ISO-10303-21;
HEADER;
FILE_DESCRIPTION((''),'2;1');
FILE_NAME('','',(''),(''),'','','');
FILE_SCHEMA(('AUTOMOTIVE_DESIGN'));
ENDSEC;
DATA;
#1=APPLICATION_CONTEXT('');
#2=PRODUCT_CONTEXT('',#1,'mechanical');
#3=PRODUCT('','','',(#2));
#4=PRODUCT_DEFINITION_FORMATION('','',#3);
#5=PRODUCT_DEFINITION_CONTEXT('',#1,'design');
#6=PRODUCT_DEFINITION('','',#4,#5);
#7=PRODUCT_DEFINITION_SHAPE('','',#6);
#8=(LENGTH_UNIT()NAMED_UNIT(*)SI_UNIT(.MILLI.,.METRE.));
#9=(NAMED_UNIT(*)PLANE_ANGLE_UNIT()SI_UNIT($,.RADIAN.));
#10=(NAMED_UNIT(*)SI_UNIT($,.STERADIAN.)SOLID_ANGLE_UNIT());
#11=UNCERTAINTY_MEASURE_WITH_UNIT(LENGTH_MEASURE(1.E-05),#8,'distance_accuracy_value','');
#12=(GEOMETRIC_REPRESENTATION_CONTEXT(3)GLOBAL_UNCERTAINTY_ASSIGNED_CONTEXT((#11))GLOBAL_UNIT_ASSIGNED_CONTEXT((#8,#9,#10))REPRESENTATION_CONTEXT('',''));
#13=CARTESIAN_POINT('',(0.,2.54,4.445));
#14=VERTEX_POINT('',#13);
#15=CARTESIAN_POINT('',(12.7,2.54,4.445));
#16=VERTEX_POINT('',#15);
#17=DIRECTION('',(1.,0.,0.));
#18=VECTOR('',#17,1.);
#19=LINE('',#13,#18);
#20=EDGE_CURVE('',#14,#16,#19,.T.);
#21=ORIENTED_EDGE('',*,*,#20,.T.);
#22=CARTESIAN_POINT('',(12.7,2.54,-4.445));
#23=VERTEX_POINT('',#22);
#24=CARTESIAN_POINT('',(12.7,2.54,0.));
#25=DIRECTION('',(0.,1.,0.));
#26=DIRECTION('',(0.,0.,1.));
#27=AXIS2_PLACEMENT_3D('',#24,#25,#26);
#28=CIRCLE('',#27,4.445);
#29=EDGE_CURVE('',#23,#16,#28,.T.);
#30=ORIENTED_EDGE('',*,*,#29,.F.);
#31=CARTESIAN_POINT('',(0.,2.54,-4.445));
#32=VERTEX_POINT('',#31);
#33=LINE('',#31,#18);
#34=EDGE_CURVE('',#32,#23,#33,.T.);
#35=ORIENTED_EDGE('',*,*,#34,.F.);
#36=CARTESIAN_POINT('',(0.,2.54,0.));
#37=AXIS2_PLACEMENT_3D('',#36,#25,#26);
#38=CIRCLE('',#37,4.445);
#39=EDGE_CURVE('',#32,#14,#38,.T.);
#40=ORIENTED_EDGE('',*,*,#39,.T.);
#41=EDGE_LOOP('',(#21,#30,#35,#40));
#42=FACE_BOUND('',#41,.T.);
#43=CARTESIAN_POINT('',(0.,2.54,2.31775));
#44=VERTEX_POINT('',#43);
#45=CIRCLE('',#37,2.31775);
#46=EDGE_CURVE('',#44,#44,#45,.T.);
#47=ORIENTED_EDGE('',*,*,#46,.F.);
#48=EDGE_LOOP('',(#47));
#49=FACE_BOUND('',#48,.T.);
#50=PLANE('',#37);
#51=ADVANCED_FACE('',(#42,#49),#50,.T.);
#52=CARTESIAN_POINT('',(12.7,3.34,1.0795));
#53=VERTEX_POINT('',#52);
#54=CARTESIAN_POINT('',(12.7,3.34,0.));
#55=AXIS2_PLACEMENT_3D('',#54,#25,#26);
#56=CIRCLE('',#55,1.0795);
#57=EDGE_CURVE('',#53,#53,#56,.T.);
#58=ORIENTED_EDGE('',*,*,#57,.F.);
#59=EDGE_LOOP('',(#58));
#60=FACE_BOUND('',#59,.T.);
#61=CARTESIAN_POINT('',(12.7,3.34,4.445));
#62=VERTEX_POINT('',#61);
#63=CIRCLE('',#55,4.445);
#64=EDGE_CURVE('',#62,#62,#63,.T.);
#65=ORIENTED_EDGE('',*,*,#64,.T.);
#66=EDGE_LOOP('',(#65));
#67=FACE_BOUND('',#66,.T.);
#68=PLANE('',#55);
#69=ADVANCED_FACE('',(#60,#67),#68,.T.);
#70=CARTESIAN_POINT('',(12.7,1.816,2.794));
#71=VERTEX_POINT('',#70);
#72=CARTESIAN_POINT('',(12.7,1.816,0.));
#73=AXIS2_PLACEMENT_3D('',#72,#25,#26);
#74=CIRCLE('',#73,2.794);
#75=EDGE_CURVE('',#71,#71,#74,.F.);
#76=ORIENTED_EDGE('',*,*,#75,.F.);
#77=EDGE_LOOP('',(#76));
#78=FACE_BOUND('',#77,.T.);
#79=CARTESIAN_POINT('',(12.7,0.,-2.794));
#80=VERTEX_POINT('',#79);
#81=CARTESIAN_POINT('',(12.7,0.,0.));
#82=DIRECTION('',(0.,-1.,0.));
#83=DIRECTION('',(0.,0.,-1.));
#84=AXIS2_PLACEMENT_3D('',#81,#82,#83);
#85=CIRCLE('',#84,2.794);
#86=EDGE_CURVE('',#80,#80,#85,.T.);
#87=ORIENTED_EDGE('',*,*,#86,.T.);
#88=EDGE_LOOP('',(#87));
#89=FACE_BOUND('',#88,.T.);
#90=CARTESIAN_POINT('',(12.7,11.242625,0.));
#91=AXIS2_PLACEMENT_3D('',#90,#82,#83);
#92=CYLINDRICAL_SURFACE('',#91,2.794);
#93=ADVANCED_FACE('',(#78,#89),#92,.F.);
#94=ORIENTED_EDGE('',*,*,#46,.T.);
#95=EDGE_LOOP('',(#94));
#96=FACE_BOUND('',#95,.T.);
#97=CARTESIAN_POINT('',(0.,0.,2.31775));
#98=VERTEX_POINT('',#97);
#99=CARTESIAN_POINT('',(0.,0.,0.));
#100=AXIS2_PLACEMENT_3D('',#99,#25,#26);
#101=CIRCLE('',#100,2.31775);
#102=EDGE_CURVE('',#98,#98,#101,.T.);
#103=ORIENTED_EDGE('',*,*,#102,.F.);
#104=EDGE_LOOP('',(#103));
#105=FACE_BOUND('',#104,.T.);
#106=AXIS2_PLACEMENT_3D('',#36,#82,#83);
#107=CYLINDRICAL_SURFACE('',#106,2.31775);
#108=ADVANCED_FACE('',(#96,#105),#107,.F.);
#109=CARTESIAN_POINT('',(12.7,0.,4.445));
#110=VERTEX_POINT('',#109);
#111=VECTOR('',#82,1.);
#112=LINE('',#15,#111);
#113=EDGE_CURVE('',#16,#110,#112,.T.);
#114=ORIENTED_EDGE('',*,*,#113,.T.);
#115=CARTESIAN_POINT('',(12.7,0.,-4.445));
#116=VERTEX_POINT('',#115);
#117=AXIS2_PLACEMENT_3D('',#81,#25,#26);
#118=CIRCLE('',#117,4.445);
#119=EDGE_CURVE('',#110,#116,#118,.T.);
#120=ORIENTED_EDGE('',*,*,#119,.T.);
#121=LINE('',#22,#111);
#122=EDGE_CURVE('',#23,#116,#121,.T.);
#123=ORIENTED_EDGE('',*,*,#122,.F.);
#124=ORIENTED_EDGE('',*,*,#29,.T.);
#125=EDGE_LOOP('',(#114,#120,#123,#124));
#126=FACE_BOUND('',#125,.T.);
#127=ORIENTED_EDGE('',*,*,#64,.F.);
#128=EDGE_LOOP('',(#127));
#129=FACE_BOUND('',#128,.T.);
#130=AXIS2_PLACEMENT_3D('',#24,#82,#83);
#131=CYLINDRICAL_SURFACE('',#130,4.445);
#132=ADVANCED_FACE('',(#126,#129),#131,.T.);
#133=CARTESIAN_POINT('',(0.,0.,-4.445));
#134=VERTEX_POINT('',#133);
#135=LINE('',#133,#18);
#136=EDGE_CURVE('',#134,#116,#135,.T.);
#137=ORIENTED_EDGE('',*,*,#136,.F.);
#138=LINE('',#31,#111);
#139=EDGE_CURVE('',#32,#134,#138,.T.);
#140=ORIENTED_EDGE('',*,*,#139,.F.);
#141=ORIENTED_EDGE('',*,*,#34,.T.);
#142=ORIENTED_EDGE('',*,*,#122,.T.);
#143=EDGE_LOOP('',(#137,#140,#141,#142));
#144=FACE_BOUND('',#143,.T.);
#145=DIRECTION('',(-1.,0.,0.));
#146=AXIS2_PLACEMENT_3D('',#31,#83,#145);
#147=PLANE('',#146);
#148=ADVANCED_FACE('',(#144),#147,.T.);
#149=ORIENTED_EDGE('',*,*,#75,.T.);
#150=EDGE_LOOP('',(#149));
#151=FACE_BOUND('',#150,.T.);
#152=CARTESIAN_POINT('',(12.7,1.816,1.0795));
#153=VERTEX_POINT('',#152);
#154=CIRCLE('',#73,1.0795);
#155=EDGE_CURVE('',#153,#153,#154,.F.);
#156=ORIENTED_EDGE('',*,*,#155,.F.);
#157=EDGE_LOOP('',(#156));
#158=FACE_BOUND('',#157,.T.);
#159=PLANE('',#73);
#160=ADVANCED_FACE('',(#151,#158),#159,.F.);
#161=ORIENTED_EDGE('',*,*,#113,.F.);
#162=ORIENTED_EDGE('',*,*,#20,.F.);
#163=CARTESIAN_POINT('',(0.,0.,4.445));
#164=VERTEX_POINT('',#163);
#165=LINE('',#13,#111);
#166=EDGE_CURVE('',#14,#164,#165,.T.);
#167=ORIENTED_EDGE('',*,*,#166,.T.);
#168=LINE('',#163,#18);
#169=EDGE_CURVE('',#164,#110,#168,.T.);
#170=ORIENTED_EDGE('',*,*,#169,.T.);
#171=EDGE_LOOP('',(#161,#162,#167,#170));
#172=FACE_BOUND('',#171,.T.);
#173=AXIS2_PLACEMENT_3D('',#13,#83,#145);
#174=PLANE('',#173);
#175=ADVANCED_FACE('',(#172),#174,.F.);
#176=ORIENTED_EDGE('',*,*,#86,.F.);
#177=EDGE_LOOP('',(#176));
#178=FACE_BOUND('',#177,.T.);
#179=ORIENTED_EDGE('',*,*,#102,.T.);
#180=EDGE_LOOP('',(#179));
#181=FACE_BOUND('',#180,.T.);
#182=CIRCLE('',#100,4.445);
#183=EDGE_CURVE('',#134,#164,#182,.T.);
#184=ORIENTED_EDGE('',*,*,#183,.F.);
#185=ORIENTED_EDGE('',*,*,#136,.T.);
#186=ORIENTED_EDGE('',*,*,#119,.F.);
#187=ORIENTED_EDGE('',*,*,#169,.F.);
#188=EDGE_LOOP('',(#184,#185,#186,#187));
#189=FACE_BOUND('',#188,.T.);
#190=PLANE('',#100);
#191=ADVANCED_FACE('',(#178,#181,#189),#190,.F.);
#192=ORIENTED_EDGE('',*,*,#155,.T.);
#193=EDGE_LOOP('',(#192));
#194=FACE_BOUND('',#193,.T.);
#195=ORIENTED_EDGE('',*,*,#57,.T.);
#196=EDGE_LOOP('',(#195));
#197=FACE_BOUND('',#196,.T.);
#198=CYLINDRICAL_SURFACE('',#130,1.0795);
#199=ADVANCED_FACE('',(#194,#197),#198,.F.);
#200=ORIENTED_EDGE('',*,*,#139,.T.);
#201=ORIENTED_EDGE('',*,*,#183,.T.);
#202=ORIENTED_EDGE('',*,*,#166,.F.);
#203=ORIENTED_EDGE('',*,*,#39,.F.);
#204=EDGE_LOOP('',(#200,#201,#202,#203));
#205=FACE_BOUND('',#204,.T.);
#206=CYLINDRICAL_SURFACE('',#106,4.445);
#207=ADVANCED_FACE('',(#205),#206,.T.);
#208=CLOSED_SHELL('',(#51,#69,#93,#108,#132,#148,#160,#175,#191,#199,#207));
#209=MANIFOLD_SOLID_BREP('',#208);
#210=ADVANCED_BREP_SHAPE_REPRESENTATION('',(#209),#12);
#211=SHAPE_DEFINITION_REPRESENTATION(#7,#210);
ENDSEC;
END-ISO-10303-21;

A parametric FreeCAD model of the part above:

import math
import FreeCAD as App
import Part
import Sketcher

V = App.Vector
Q = App.Units.Quantity

doc = App.newDocument("Part")
params = doc.addObject("Spreadsheet::Sheet", "Params")
for row, (alias, value) in enumerate([
    ("sketch1_diameter", "0.085 in"),
    ("sketch1_width", "0.5 in"),
    ("sketch1_radius", "0.175 in"),
    ("pad1_length", "0.1 in"),
    ("sketch2_diameter", "0.35 in"),
    ("sketch2_diameter2", "0.085 in"),
    ("pad2_length", "0.8 mm"),
    ("sketch3_diameter", "0.22 in"),
    ("sketch3_diameter2", "0.085 in"),
    ("pocket1_length", "1.816 mm"),
], start=1):
    params.set(f"A{row}", alias)
    params.set(f"B{row}", "=" + value)
    params.setAlias(f"B{row}", alias)

body = doc.addObject("PartDesign::Body", "Body")

sketch1 = body.newObject("Sketcher::SketchObject", "Sketch")
sketch1.AttachmentSupport = (doc.getObject("XZ_Plane"), [""])
sketch1.MapMode = "FlatFace"
sketch1.addGeometry([
    Part.ArcOfCircle(Part.Circle(V(0, 0, 0), V(0, 0, 1), 4.445), math.radians(90), math.radians(270)),
    Part.LineSegment(V(0, 4.445, 0), V(12.7, 4.445, 0)),
    Part.ArcOfCircle(Part.Circle(V(12.7, 0, 0), V(0, 0, 1), 4.445), math.radians(-90), math.radians(90)),
    Part.LineSegment(V(12.7, -4.445, 0), V(0, -4.445, 0)),
    Part.Circle(V(0, 0, 0), V(0, 0, 1), 2.31775),
    Part.Circle(V(12.7, 0, 0), V(0, 0, 1), 1.0795),
], False)
sketch1.addConstraint([
    Sketcher.Constraint("Tangent", 0, 1, 1, 1),
    Sketcher.Constraint("Tangent", 1, 2, 2, 2),
    Sketcher.Constraint("Tangent", 2, 1, 3, 1),
    Sketcher.Constraint("Tangent", 3, 2, 0, 2),
    Sketcher.Constraint("Horizontal", 1),
    Sketcher.Constraint("Horizontal", 3),
    Sketcher.Constraint("Coincident", 0, 3, -1, 1),
    Sketcher.Constraint("Coincident", 4, 3, -1, 1),
    Sketcher.Constraint("Coincident", 5, 3, 2, 3),
    Sketcher.Constraint("Diameter", 5, Q("0.085 in")),
    Sketcher.Constraint("DistanceX", 1, 1, 1, 2, Q("0.5 in")),
    Sketcher.Constraint("Radius", 0, Q("0.175 in")),
    Sketcher.Constraint("Diameter", 4, Q("0.1825 in")),
])
sketch1.setExpression("Constraints[9]", "Params.sketch1_diameter")
sketch1.setExpression("Constraints[10]", "Params.sketch1_width")
sketch1.setExpression("Constraints[11]", "Params.sketch1_radius")
pad1 = body.newObject("PartDesign::Pad", "Pad")
pad1.Profile = sketch1
pad1.setExpression("Length", "Params.pad1_length")
pad1.Reversed = True

sketch2 = body.newObject("Sketcher::SketchObject", "Sketch001")
sketch2.AttachmentSupport = (doc.getObject("XZ_Plane"), [""])
sketch2.MapMode = "FlatFace"
sketch2.AttachmentOffset = App.Placement(V(0, 0, -0.1 * 25.4), App.Rotation())
sketch2.addGeometry([
    Part.Circle(V(12.7, 0, 0), V(0, 0, 1), 4.445),
    Part.Circle(V(12.7, 0, 0), V(0, 0, 1), 1.0795),
], False)
sketch2.addConstraint([
    Sketcher.Constraint("Coincident", 1, 3, 0, 3),
    Sketcher.Constraint("PointOnObject", 0, 3, -1),
    Sketcher.Constraint("Diameter", 0, Q("0.35 in")),
    Sketcher.Constraint("Diameter", 1, Q("0.085 in")),
    Sketcher.Constraint("DistanceX", -1, 1, 0, 3, Q("0.5 in")),
])
sketch2.setExpression("Constraints[2]", "Params.sketch2_diameter")
sketch2.setExpression("Constraints[3]", "Params.sketch2_diameter2")
pad2 = body.newObject("PartDesign::Pad", "Pad001")
pad2.Profile = sketch2
pad2.setExpression("Length", "Params.pad2_length")
pad2.Reversed = True

sketch3 = body.newObject("Sketcher::SketchObject", "Sketch002")
sketch3.AttachmentSupport = (doc.getObject("XZ_Plane"), [""])
sketch3.MapMode = "FlatFace"
sketch3.addGeometry([
    Part.Circle(V(12.7, 0, 0), V(0, 0, 1), 2.794),
    Part.Circle(V(12.7, 0, 0), V(0, 0, 1), 1.0795),
], False)
sketch3.addConstraint([
    Sketcher.Constraint("Coincident", 1, 3, 0, 3),
    Sketcher.Constraint("PointOnObject", 0, 3, -1),
    Sketcher.Constraint("Diameter", 0, Q("0.22 in")),
    Sketcher.Constraint("Diameter", 1, Q("0.085 in")),
    Sketcher.Constraint("DistanceX", -1, 1, 0, 3, Q("0.5 in")),
])
sketch3.setExpression("Constraints[2]", "Params.sketch3_diameter")
sketch3.setExpression("Constraints[3]", "Params.sketch3_diameter2")
pocket1 = body.newObject("PartDesign::Pocket", "Pocket")
pocket1.Profile = sketch3
pocket1.setExpression("Length", "Params.pocket1_length")

doc.recompute()
